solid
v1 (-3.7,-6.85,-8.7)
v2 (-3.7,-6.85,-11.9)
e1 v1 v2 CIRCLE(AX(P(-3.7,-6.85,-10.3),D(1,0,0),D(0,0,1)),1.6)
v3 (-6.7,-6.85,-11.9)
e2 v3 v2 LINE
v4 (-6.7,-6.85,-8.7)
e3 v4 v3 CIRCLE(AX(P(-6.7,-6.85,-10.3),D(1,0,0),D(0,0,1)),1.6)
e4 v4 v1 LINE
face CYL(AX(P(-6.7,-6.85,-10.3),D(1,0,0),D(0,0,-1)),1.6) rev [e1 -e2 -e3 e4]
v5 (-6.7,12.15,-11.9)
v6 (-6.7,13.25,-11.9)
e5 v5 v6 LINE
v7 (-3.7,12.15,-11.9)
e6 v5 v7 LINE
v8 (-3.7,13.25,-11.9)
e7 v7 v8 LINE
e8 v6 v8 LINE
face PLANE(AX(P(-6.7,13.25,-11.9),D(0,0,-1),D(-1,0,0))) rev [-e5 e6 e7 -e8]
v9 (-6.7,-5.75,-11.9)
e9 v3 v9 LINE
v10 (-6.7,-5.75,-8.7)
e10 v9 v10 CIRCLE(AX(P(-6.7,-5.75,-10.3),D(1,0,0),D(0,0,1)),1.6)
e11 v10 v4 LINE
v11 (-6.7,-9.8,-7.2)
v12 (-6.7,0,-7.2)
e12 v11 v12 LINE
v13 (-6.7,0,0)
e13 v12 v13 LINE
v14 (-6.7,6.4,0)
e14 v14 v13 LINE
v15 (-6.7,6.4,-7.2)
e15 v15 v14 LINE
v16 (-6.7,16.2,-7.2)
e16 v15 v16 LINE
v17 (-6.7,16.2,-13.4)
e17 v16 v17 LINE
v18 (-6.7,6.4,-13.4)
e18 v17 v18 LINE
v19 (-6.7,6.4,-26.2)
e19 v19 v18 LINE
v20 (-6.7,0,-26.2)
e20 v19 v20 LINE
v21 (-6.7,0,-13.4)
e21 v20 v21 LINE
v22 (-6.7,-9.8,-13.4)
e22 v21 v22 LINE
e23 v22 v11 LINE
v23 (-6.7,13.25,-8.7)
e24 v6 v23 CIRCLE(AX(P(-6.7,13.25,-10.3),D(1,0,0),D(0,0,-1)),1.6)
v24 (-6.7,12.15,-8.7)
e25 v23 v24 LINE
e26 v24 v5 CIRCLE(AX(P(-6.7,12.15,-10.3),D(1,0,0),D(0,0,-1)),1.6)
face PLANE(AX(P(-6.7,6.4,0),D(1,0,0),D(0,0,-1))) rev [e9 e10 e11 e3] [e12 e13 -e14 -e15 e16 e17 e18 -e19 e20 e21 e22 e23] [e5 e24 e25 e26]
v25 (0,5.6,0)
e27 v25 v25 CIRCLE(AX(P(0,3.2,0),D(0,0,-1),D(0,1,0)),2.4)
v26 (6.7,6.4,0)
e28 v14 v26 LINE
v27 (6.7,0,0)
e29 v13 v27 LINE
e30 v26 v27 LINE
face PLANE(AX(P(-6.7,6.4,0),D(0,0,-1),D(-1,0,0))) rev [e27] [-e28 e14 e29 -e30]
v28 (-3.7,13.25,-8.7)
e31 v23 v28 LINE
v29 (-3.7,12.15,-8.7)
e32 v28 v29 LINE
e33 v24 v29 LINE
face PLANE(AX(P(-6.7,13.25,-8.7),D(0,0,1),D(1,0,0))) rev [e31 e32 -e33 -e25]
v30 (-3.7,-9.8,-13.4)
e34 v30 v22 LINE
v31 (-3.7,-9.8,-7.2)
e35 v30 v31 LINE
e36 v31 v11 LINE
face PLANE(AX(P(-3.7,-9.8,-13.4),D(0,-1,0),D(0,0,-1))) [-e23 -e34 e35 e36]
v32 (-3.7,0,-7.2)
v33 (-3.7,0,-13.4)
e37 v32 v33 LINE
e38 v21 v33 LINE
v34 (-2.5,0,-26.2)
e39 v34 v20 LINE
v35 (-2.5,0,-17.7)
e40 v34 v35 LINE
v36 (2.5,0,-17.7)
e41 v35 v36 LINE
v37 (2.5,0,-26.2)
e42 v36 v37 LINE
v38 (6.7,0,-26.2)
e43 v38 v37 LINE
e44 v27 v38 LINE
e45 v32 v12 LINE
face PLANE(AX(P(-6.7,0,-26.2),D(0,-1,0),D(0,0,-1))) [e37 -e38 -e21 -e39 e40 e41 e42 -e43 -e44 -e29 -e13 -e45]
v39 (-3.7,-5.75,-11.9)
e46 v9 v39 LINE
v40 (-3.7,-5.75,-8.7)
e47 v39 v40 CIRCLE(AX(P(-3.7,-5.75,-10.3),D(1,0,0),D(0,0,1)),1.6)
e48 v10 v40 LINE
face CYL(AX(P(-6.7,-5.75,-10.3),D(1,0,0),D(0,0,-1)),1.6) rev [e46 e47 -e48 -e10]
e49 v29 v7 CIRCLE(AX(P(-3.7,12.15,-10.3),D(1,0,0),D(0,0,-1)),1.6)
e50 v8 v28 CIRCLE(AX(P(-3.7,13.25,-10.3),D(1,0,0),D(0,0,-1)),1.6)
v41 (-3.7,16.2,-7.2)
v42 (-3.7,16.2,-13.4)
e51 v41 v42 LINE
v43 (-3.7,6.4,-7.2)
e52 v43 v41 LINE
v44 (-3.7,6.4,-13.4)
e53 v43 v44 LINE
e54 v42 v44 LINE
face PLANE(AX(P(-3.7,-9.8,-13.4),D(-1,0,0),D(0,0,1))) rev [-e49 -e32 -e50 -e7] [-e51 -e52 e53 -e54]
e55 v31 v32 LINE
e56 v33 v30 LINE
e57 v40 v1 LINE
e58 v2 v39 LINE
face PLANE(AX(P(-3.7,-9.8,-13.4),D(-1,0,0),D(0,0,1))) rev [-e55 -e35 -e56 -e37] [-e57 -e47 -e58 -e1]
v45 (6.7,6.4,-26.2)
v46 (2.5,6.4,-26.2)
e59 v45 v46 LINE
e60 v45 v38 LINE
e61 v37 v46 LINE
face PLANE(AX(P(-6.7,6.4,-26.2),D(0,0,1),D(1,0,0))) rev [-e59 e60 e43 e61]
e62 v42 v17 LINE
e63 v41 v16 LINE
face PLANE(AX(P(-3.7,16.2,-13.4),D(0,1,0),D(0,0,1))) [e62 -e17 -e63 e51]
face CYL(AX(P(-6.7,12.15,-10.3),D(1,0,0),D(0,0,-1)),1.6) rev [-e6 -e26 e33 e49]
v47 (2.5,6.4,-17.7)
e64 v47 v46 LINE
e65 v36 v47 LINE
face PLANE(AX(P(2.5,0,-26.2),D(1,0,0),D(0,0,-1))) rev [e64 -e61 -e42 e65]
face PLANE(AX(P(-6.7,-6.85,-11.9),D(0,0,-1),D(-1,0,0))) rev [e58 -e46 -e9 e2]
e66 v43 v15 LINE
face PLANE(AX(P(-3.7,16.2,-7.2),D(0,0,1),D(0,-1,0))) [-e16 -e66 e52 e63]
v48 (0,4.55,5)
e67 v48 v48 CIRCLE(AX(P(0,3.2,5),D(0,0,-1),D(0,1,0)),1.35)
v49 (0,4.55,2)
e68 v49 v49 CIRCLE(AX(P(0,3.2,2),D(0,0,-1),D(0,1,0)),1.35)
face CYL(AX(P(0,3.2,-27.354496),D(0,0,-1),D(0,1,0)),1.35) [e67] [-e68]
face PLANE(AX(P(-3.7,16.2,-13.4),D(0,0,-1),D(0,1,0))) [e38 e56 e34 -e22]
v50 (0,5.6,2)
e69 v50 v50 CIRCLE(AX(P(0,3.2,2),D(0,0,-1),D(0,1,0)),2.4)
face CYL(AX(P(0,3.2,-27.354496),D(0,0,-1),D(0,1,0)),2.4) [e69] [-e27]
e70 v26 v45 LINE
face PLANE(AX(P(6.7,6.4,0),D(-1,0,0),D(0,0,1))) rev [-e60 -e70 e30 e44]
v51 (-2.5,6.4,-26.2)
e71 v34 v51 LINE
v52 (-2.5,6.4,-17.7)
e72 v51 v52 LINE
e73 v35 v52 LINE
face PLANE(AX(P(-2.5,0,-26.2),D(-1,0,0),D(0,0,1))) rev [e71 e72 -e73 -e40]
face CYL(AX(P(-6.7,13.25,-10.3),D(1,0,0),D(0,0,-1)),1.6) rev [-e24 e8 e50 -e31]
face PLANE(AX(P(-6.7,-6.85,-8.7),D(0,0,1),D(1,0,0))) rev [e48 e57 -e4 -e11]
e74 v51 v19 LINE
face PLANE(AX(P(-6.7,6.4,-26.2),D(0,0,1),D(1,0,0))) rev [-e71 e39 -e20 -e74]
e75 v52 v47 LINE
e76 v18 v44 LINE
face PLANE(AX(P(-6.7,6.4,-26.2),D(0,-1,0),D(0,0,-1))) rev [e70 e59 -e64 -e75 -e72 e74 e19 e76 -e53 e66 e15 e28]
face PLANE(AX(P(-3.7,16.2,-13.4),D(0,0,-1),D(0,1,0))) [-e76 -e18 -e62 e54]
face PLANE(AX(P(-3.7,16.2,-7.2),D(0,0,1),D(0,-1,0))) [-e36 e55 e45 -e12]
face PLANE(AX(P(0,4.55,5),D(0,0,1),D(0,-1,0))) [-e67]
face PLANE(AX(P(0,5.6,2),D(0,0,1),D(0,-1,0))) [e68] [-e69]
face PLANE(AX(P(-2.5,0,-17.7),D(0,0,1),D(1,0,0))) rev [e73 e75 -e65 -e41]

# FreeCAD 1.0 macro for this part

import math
import FreeCAD as App
import Part
import Sketcher
Q = App.Units.Quantity


def add_polygon(sketch, points):
    """Adds a closed chain of lines whose ends are joined by coincident constraints."""
    first, n = sketch.GeometryCount, len(points)
    for a, b in zip(points, points[1:] + points[:1]):
        sketch.addGeometry(Part.LineSegment(App.Vector(*a, 0), App.Vector(*b, 0)), False)
    for i in range(n):
        sketch.addConstraint(Sketcher.Constraint("Coincident", first + i, 2, first + (i + 1) % n, 1))

doc = App.newDocument("Part")
params = doc.addObject("Spreadsheet::Sheet", "Params")
for row, (alias, value) in enumerate([
    ("sketch1_width", "13.4 mm"),
    ("sketch1_height", "26.2 mm"),
    ("pad1_length", "6.4 mm"),
    ("sketch2_width", "5 mm"),
    ("sketch2_height", "8.5 mm"),
    ("pocket1_length", "6.4 mm"),
    ("sketch3_width", "26 mm"),
    ("sketch3_height", "6.2 mm"),
    ("pad2_length", "3 mm"),
    ("sketch4_radius", "1.6 mm"),
    ("sketch4_width", "1.1 mm"),
    ("sketch5_height", "2 mm"),
    ("sketch5_height2", "3 mm"),
    ("sketch5_width", "2.4 mm"),
    ("sketch5_width2", "1.05 mm"),
    ("revolution_angle", "360 deg"),
], start=1):
    params.set(f"A{row}", alias)
    params.set(f"B{row}", "=" + value)
    params.setAlias(f"B{row}", alias)

body = doc.addObject("PartDesign::Body", "Body")

sketch1 = body.newObject("Sketcher::SketchObject", "Sketch")
sketch1.AttachmentSupport = (doc.getObject("XZ_Plane"), [""])
sketch1.MapMode = "FlatFace"
add_polygon(sketch1, [(-6.7, -26.2), (-6.7, 0), (6.7, 0), (6.7, -26.2)])
sketch1.addConstraint([
    Sketcher.Constraint("Vertical", 0),
    Sketcher.Constraint("Horizontal", 1),
    Sketcher.Constraint("Vertical", 2),
    Sketcher.Constraint("Horizontal", 3),
    Sketcher.Constraint("Symmetric", 0, 2, 1, 2, -1, 1),
    Sketcher.Constraint("DistanceX", 1, 1, 1, 2, Q("13.4 mm")),
    Sketcher.Constraint("DistanceY", 0, 1, 0, 2, Q("26.2 mm")),
])
sketch1.setExpression("Constraints[9]", "Params.sketch1_width")
sketch1.setExpression("Constraints[10]", "Params.sketch1_height")
pad1 = body.newObject("PartDesign::Pad", "Pad")
pad1.Profile = sketch1
pad1.setExpression("Length", "Params.pad1_length")
pad1.Reversed = True

sketch2 = body.newObject("Sketcher::SketchObject", "Sketch001")
sketch2.AttachmentSupport = (doc.getObject("XZ_Plane"), [""])
sketch2.MapMode = "FlatFace"
sketch2.AttachmentOffset = App.Placement(App.Vector(0, 0, -6.4), App.Rotation())
add_polygon(sketch2, [(-2.5, -26.2), (-2.5, -17.7), (2.5, -17.7), (2.5, -26.2)])
sketch2.addConstraint([
    Sketcher.Constraint("Vertical", 0),
    Sketcher.Constraint("Horizontal", 1),
    Sketcher.Constraint("Vertical", 2),
    Sketcher.Constraint("Horizontal", 3),
    Sketcher.Constraint("DistanceX", 1, 1, 1, 2, Q("5 mm")),
    Sketcher.Constraint("DistanceY", 0, 1, 0, 2, Q("8.5 mm")),
    Sketcher.Constraint("DistanceX", 0, 2, -1, 1, Q("2.5 mm")),
    Sketcher.Constraint("DistanceY", 0, 2, -1, 1, Q("17.7 mm")),
])
sketch2.setExpression("Constraints[8]", "Params.sketch2_width")
sketch2.setExpression("Constraints[9]", "Params.sketch2_height")
pocket1 = body.newObject("PartDesign::Pocket", "Pocket")
pocket1.Profile = sketch2
pocket1.setExpression("Length", "Params.pocket1_length")
pocket1.Reversed = True

sketch3 = body.newObject("Sketcher::SketchObject", "Sketch002")
sketch3.AttachmentSupport = (doc.getObject("YZ_Plane"), [""])
sketch3.MapMode = "FlatFace"
sketch3.AttachmentOffset = App.Placement(App.Vector(0, 0, -6.7), App.Rotation())
add_polygon(sketch3, [(16.2, -13.4), (-9.8, -13.4), (-9.8, -7.2), (16.2, -7.2)])
sketch3.addConstraint([
    Sketcher.Constraint("Horizontal", 0),
    Sketcher.Constraint("Vertical", 1),
    Sketcher.Constraint("Horizontal", 2),
    Sketcher.Constraint("Vertical", 3),
    Sketcher.Constraint("DistanceX", 0, 2, 0, 1, Q("26 mm")),
    Sketcher.Constraint("DistanceY", 1, 1, 1, 2, Q("6.2 mm")),
    Sketcher.Constraint("DistanceX", 0, 2, -1, 1, Q("9.8 mm")),
    Sketcher.Constraint("DistanceY", 0, 2, -1, 1, Q("13.4 mm")),
])
sketch3.setExpression("Constraints[8]", "Params.sketch3_width")
sketch3.setExpression("Constraints[9]", "Params.sketch3_height")
pad2 = body.newObject("PartDesign::Pad", "Pad001")
pad2.Profile = sketch3
pad2.setExpression("Length", "Params.pad2_length")

sketch4 = body.newObject("Sketcher::SketchObject", "Sketch003")
sketch4.AttachmentSupport = (doc.getObject("YZ_Plane"), [""])
sketch4.MapMode = "FlatFace"
sketch4.AttachmentOffset = App.Placement(App.Vector(0, 0, -3.7), App.Rotation())
sketch4.addGeometry([
    Part.LineSegment(App.Vector(12.15, -11.9, 0), App.Vector(13.25, -11.9, 0)),
    Part.ArcOfCircle(Part.Circle(App.Vector(13.25, -10.3, 0), App.Vector(0, 0, 1), 1.6), math.radians(-90), math.radians(90)),
    Part.LineSegment(App.Vector(13.25, -8.7, 0), App.Vector(12.15, -8.7, 0)),
    Part.ArcOfCircle(Part.Circle(App.Vector(12.15, -10.3, 0), App.Vector(0, 0, 1), 1.6), math.radians(90), math.radians(270)),
    Part.LineSegment(App.Vector(-6.85, -11.9, 0), App.Vector(-5.75, -11.9, 0)),
    Part.ArcOfCircle(Part.Circle(App.Vector(-5.75, -10.3, 0), App.Vector(0, 0, 1), 1.6), math.radians(-90), math.radians(90)),
    Part.LineSegment(App.Vector(-5.75, -8.7, 0), App.Vector(-6.85, -8.7, 0)),
    Part.ArcOfCircle(Part.Circle(App.Vector(-6.85, -10.3, 0), App.Vector(0, 0, 1), 1.6), math.radians(90), math.radians(270)),
], False)
sketch4.addConstraint([
    Sketcher.Constraint("Tangent", 0, 2, 1, 1),
    Sketcher.Constraint("Tangent", 1, 2, 2, 1),
    Sketcher.Constraint("Tangent", 2, 2, 3, 1),
    Sketcher.Constraint("Tangent", 3, 2, 0, 1),
    Sketcher.Constraint("Tangent", 4, 2, 5, 1),
    Sketcher.Constraint("Tangent", 5, 2, 6, 1),
    Sketcher.Constraint("Tangent", 6, 2, 7, 1),
    Sketcher.Constraint("Tangent", 7, 2, 4, 1),
    Sketcher.Constraint("Horizontal", 0),
    Sketcher.Constraint("Horizontal", 2),
    Sketcher.Constraint("Horizontal", 4),
    Sketcher.Constraint("Horizontal", 6),
    Sketcher.Constraint("Equal", 3, 5),
    Sketcher.Constraint("Horizontal", 3, 3, 5, 3),
    Sketcher.Constraint("Equal", 2, 4),
    Sketcher.Constraint("Radius", 1, Q("1.6 mm")),
    Sketcher.Constraint("DistanceX", 0, 1, 0, 2, Q("1.1 mm")),
    Sketcher.Constraint("DistanceX", 5, 3, 1, 3, Q("19 mm")),
    Sketcher.Constraint("DistanceY", 1, 3, -1, 1, Q("10.3 mm")),
    Sketcher.Constraint("DistanceX", -1, 1, 1, 3, Q("13.25 mm")),
])
sketch4.setExpression("Constraints[15]", "Params.sketch4_radius")
sketch4.setExpression("Constraints[16]", "Params.sketch4_width")
pocket2 = body.newObject("PartDesign::Pocket", "Pocket001")
pocket2.Profile = sketch4
pocket2.Type = "ThroughAll"

sketch5 = body.newObject("Sketcher::SketchObject", "Sketch004")
sketch5.AttachmentSupport = (doc.getObject("YZ_Plane"), [""])
sketch5.MapMode = "FlatFace"
add_polygon(sketch5, [(3.2, 0), (5.6, 0), (5.6, 2), (4.55, 2), (4.55, 5), (3.2, 5)])
sketch5.addGeometry(Part.LineSegment(App.Vector(3.2, 0, 0), App.Vector(3.2, 5, 0)), True)
sketch5.addConstraint([
    Sketcher.Constraint("Horizontal", 0),
    Sketcher.Constraint("Vertical", 1),
    Sketcher.Constraint("Horizontal", 2),
    Sketcher.Constraint("Vertical", 3),
    Sketcher.Constraint("Horizontal", 4),
    Sketcher.Constraint("Vertical", 5),
    Sketcher.Constraint("Vertical", 6),
    Sketcher.Constraint("Coincident", 6, 1, 5, 2),
    Sketcher.Constraint("PointOnObject", 0, 2, -1),
    Sketcher.Constraint("Horizontal", 3, 2, 6, 2),
    Sketcher.Constraint("DistanceY", 1, 1, 1, 2, Q("2 mm")),
    Sketcher.Constraint("DistanceY", 3, 1, 3, 2, Q("3 mm")),
    Sketcher.Constraint("DistanceX", 0, 1, 0, 2, Q("2.4 mm")),
    Sketcher.Constraint("DistanceX", 2, 2, 2, 1, Q("1.05 mm")),
    Sketcher.Constraint("DistanceX", -1, 1, 0, 2, Q("5.6 mm")),
])
sketch5.setExpression("Constraints[16]", "Params.sketch5_height")
sketch5.setExpression("Constraints[17]", "Params.sketch5_height2")
sketch5.setExpression("Constraints[18]", "Params.sketch5_width")
sketch5.setExpression("Constraints[19]", "Params.sketch5_width2")
revolution = body.newObject("PartDesign::Revolution", "Revolution")
revolution.Profile = sketch5
revolution.ReferenceAxis = (sketch5, ["Axis0"])
revolution.setExpression("Angle", "Params.revolution_angle")

doc.recompute()
